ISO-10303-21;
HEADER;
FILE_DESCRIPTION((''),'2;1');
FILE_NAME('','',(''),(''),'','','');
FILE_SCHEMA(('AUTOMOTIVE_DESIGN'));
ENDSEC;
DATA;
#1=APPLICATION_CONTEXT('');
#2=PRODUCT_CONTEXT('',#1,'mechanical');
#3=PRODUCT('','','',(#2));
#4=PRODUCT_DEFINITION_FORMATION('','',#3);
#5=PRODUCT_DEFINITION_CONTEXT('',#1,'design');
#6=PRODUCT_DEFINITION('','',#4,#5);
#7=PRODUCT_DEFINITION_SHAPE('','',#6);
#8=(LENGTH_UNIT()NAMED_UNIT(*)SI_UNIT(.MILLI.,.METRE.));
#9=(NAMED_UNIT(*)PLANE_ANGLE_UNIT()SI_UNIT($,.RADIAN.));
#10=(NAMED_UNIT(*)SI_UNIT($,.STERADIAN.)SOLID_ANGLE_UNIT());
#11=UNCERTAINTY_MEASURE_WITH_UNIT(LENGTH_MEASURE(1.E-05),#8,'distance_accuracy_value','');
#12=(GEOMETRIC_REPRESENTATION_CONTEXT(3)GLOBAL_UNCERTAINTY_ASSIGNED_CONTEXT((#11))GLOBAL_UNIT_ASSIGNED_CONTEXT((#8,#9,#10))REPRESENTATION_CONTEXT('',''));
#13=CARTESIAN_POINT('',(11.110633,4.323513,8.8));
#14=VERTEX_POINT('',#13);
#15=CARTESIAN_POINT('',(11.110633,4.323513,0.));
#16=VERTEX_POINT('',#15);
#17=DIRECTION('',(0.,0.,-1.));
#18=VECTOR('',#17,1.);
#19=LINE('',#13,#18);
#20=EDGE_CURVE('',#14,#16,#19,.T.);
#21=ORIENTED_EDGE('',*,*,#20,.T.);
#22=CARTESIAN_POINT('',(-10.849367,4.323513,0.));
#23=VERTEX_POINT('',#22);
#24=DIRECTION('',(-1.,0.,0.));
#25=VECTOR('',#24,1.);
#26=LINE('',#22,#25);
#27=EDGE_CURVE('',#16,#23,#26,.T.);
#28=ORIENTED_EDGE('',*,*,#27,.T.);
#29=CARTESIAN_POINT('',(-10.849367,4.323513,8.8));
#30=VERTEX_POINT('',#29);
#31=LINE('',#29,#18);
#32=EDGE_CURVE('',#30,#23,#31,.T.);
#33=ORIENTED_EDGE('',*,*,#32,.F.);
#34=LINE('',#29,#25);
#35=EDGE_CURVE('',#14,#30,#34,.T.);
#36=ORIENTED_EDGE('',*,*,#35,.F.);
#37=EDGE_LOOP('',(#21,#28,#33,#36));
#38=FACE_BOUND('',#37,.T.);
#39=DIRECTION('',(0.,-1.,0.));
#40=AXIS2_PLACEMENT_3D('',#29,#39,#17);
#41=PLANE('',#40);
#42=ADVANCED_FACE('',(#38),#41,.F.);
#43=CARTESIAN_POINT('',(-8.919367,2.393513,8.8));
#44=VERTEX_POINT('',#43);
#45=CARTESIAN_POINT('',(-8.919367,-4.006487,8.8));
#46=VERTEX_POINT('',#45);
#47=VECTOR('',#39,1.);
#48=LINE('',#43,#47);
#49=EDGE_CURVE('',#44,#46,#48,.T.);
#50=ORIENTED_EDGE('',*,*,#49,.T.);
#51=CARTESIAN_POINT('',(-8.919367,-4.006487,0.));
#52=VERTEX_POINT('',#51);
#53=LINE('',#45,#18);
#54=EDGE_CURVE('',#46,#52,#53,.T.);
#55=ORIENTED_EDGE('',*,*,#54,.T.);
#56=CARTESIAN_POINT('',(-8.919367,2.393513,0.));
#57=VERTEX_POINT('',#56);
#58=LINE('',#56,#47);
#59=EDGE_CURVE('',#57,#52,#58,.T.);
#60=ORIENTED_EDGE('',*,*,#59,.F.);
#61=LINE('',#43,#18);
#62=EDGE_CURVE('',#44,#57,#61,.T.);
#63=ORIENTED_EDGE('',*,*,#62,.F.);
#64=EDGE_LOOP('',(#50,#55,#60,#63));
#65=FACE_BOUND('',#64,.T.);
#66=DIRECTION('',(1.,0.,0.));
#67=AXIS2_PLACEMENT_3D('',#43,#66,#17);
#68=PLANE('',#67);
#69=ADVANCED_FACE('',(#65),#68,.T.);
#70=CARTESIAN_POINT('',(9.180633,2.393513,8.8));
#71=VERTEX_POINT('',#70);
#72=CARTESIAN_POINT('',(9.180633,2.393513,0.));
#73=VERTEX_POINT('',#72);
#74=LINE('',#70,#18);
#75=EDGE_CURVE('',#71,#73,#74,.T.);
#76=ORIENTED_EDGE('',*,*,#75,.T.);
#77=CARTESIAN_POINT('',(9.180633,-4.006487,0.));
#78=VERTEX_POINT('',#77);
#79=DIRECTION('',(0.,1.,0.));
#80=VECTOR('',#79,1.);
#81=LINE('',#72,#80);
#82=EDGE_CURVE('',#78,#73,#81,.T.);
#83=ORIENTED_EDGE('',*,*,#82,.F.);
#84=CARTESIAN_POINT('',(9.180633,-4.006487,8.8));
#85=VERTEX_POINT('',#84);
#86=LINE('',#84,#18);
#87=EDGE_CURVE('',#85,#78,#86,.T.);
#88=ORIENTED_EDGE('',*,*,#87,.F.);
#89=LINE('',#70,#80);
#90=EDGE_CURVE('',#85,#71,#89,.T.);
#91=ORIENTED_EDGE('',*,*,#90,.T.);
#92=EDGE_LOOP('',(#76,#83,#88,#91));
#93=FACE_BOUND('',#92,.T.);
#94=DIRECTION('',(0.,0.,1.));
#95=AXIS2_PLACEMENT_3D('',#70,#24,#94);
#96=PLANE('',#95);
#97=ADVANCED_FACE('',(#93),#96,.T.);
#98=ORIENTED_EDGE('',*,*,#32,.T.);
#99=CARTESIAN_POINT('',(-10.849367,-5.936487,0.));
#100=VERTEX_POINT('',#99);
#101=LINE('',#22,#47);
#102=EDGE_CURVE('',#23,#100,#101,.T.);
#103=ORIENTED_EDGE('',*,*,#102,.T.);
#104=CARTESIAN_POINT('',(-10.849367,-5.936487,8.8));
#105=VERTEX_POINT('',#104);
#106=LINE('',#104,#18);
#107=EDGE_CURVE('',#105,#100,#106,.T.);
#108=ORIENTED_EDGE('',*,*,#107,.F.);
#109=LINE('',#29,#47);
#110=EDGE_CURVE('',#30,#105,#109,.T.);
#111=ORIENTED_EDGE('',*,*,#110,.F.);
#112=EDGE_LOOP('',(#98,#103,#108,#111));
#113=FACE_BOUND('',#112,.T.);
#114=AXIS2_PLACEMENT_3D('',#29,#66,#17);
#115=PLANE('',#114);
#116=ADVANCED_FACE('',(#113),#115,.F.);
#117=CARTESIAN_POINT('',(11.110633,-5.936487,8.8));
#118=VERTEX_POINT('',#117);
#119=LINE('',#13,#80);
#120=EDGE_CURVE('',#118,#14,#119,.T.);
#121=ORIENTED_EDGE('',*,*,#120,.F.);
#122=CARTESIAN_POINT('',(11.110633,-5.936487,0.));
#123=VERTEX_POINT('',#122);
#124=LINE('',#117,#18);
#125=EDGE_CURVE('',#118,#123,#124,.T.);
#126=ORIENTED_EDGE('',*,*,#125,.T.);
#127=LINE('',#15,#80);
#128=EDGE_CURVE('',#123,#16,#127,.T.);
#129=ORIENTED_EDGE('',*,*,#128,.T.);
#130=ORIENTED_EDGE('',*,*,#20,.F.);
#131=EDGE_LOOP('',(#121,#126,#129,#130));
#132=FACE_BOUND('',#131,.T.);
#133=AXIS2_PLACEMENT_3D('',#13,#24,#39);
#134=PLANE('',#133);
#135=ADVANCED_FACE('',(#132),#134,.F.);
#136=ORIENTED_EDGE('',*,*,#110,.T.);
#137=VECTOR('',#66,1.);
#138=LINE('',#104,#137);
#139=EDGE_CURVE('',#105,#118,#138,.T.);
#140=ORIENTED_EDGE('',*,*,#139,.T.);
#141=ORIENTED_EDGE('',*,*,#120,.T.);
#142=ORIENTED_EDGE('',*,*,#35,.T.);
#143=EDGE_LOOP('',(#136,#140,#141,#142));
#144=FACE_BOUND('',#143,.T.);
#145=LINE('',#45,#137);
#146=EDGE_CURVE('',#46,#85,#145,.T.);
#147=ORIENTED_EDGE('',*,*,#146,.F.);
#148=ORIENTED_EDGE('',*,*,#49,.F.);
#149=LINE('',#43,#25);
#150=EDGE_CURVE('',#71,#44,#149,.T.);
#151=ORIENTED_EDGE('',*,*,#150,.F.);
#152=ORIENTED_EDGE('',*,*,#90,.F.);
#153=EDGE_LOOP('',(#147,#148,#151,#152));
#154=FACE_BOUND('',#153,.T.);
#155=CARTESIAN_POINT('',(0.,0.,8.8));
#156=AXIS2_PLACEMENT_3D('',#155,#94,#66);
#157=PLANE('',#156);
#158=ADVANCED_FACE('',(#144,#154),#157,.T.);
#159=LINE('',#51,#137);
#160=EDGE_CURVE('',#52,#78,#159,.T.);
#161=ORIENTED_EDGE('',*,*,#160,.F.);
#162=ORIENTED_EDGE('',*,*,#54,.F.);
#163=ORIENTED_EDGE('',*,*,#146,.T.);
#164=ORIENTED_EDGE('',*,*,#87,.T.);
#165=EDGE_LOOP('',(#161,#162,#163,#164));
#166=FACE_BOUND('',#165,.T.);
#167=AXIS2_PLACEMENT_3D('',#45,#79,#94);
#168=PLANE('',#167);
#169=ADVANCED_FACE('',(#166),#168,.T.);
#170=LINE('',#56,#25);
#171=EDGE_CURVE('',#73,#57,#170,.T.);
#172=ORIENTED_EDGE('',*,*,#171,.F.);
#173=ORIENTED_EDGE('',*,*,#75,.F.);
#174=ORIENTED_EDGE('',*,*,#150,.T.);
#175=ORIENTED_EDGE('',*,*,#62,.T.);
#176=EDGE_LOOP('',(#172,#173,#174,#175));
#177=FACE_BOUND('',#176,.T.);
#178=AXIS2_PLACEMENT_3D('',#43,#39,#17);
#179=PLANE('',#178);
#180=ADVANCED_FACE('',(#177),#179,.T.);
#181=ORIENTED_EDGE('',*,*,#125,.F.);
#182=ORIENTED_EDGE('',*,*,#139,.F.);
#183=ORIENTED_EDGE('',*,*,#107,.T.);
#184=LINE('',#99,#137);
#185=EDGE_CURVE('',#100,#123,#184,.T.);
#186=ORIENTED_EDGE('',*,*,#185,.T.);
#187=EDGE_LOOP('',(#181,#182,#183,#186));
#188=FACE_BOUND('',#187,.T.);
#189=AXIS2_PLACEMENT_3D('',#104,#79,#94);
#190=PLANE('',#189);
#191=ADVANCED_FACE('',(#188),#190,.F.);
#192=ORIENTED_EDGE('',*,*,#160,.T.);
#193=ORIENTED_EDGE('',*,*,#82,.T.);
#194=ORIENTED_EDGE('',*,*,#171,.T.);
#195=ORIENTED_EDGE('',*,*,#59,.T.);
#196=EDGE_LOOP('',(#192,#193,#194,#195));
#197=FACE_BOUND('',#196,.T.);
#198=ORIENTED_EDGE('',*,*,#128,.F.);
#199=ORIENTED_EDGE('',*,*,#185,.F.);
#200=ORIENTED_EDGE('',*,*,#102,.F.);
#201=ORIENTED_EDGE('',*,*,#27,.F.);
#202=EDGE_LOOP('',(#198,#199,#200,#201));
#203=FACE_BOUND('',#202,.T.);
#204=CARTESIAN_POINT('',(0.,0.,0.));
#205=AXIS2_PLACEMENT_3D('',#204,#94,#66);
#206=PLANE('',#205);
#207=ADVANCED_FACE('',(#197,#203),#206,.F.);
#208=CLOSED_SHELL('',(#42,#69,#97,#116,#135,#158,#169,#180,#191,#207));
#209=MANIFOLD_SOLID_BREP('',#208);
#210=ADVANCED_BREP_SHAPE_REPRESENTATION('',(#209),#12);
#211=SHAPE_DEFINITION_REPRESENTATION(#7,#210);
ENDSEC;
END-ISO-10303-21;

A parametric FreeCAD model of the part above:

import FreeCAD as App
import Part
import Sketcher
from FreeCAD import Vector


def add_polygon(sketch, points):
    """Adds a closed chain of lines whose ends are joined by coincident constraints."""
    first, n = sketch.GeometryCount, len(points)
    for a, b in zip(points, points[1:] + points[:1]):
        sketch.addGeometry(Part.LineSegment(App.Vector(*a, 0), App.Vector(*b, 0)), False)
    for i in range(n):
        sketch.addConstraint(Sketcher.Constraint("Coincident", first + i, 2, first + (i + 1) % n, 1))

doc = App.newDocument("Part")
body = doc.addObject("PartDesign::Body", "Body")

# Sketch on XY plane
sketch1 = doc.addObject("Sketcher::SketchObject", "Sketch")
body.addObject(sketch1)
sketch1.AttachmentSupport = (doc.XY_Plane, [""])
sketch1.MapMode = "FlatFace"
add_polygon(sketch1, [(-11, 4), (-11, -6), (11, -6), (11, 4)])  # lines 0-3
add_polygon(sketch1, [(9, -4), (-9, -4), (-9, 2), (9, 2)])  # lines 4-7
sketch1.addConstraint([
    Sketcher.Constraint("Vertical", 0),
    Sketcher.Constraint("Horizontal", 1),
    Sketcher.Constraint("Vertical", 2),
    Sketcher.Constraint("Horizontal", 3),
    Sketcher.Constraint("Horizontal", 4),
    Sketcher.Constraint("Vertical", 5),
    Sketcher.Constraint("Horizontal", 6),
    Sketcher.Constraint("Vertical", 7),
    Sketcher.Constraint("DistanceX", 4, 2, 4, 1, 18.1),
    Sketcher.Constraint("DistanceY", 5, 1, 5, 2, 6.4),
    Sketcher.Constraint("DistanceX", 1, 1, 1, 2, 21.96),
    Sketcher.Constraint("DistanceY", 0, 2, 0, 1, 10.26),
    Sketcher.Constraint("DistanceX", 0, 2, 4, 2, 1.93),
    Sketcher.Constraint("DistanceY", 0, 2, 4, 2, 1.93),
    Sketcher.Constraint("DistanceX", 0, 2, -1, 1, 10.849367),
    Sketcher.Constraint("DistanceY", 0, 2, -1, 1, 5.936487),
])
pad1 = doc.addObject("PartDesign::Pad", "Pad")
body.addObject(pad1)
pad1.Profile = sketch1
pad1.Length = 8.8

doc.recompute()
